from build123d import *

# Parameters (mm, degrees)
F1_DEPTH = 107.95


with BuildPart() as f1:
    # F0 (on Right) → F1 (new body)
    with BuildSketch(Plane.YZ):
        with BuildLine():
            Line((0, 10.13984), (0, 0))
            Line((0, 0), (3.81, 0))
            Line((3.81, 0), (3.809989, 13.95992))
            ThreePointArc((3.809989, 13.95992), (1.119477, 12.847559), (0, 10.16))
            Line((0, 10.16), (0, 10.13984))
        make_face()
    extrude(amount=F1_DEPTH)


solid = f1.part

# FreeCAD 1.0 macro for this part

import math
import FreeCAD as App
import Part
import Sketcher
Q = App.Units.Quantity

doc = App.newDocument("Part")
body = doc.addObject("PartDesign::Body", "Body")

# Sketch on YZ plane
sketch1 = body.newObject("Sketcher::SketchObject", "Sketch")
sketch1.AttachmentSupport = (doc.getObject("YZ_Plane"), [""])
sketch1.MapMode = "FlatFace"
sketch1.addGeometry([
    Part.LineSegment(App.Vector(0, 0, 0), App.Vector(3.8, 0, 0)),
    Part.LineSegment(App.Vector(3.8, 0, 0), App.Vector(3.8, 14, 0)),
    Part.ArcOfCircle(Part.Circle(App.Vector(3.8, 10.1, 0), App.Vector(0, 0, 1), 3.8), math.radians(90), math.radians(180)),
    Part.LineSegment(App.Vector(0, 10.2, 0), App.Vector(0, 0, 0)),
], False)
sketch1.addConstraint([
    Sketcher.Constraint("Coincident", 0, 2, 1, 1),
    Sketcher.Constraint("Coincident", 1, 2, 2, 1),
    Sketcher.Constraint("Coincident", 2, 2, 3, 1),
    Sketcher.Constraint("Coincident", 3, 2, 0, 1),
    Sketcher.Constraint("Horizontal", 0),
    Sketcher.Constraint("Vertical", 3),
    Sketcher.Constraint("Coincident", 3, 2, -1, 1),
    Sketcher.Constraint("Vertical", 2, 3, 1, 2),
    Sketcher.Constraint("Radius", 2, Q("0.15 in")),
    Sketcher.Constraint("DistanceY", 3, 2, 3, 1, Q("0.4 in")),
    Sketcher.Constraint("DistanceX", 0, 1, 0, 2, Q("0.15 in")),
    Sketcher.Constraint("Distance", 1, Q("13.95992 mm")),
])
pad1 = body.newObject("PartDesign::Pad", "Pad")
pad1.Profile = sketch1
pad1.Length = Q("4.25 in")

doc.recompute()
